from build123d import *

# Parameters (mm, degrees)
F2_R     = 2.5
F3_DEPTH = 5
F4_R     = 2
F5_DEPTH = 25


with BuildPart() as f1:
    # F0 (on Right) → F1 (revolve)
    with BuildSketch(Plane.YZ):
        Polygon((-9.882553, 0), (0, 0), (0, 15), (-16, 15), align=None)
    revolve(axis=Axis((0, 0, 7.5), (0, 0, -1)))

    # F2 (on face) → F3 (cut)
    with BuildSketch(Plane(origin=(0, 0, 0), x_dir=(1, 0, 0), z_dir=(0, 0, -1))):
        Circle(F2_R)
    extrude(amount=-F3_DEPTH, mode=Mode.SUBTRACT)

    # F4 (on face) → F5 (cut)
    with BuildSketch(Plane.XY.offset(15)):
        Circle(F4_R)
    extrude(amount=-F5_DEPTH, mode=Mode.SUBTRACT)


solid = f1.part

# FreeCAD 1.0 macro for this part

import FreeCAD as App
import Part
import Sketcher
Q = App.Units.Quantity

doc = App.newDocument("Part")
body = doc.addObject("PartDesign::Body", "Body")

# Sketch on YZ plane
sketch1 = body.newObject("Sketcher::SketchObject", "Sketch")
sketch1.AttachmentSupport = (doc.getObject("YZ_Plane"), [""])
sketch1.MapMode = "FlatFace"
sketch1.addGeometry(Part.LineSegment(App.Vector(-10, 0, 0), App.Vector(0, 0, 0)), False)
sketch1.addGeometry(Part.LineSegment(App.Vector(0, 0, 0), App.Vector(0, 15, 0)), False)
sketch1.addGeometry(Part.LineSegment(App.Vector(0, 15, 0), App.Vector(-16, 15, 0)), False)
sketch1.addGeometry(Part.LineSegment(App.Vector(-16, 15, 0), App.Vector(-10, 0, 0)), False)
sketch1.addConstraint(Sketcher.Constraint("Coincident", 0, 2, 1, 1))
sketch1.addConstraint(Sketcher.Constraint("Coincident", 1, 2, 2, 1))
sketch1.addConstraint(Sketcher.Constraint("Coincident", 2, 2, 3, 1))
sketch1.addConstraint(Sketcher.Constraint("Coincident", 3, 2, 0, 1))
sketch1.addConstraint(Sketcher.Constraint("Horizontal", 0))
sketch1.addConstraint(Sketcher.Constraint("Vertical", 1))
sketch1.addConstraint(Sketcher.Constraint("Horizontal", 2))
sketch1.addConstraint(Sketcher.Constraint("Coincident", 0, 2, -1, 1))
sketch1.addConstraint(Sketcher.Constraint("DistanceX", 2, 2, 2, 1, Q("16 mm")))
sketch1.addConstraint(Sketcher.Constraint("DistanceY", 1, 1, 1, 2, Q("15 mm")))
sketch1.addConstraint(Sketcher.Constraint("Distance", 3, Q("16.19948 mm")))
revolution = body.newObject("PartDesign::Revolution", "Revolution")
revolution.Profile = sketch1
revolution.ReferenceAxis = (sketch1, ["V_Axis"])
revolution.Angle = 360

# Sketch on XY plane
sketch2 = body.newObject("Sketcher::SketchObject", "Sketch001")
sketch2.AttachmentSupport = (doc.getObject("XY_Plane"), [""])
sketch2.MapMode = "FlatFace"
sketch2.addGeometry(Part.Circle(App.Vector(0, 0, 0), App.Vector(0, 0, 1), 2.5), False)
sketch2.addConstraint(Sketcher.Constraint("Coincident", 0, 3, -1, 1))
sketch2.addConstraint(Sketcher.Constraint("Diameter", 0, Q("5 mm")))
pocket1 = body.newObject("PartDesign::Pocket", "Pocket")
pocket1.Profile = sketch2
pocket1.Length = 5
pocket1.Reversed = True

# Sketch on XY plane
sketch3 = body.newObject("Sketcher::SketchObject", "Sketch002")
sketch3.AttachmentSupport = (doc.getObject("XY_Plane"), [""])
sketch3.MapMode = "FlatFace"
sketch3.AttachmentOffset = App.Placement(App.Vector(0, 0, 15), App.Rotation())
sketch3.addGeometry(Part.Circle(App.Vector(0, 0, 0), App.Vector(0, 0, 1), 2), False)
sketch3.addConstraint(Sketcher.Constraint("Coincident", 0, 3, -1, 1))
sketch3.addConstraint(Sketcher.Constraint("Diameter", 0, Q("4 mm")))
pocket2 = body.newObject("PartDesign::Pocket", "Pocket001")
pocket2.Profile = sketch3
pocket2.Length = 25

doc.recompute()
